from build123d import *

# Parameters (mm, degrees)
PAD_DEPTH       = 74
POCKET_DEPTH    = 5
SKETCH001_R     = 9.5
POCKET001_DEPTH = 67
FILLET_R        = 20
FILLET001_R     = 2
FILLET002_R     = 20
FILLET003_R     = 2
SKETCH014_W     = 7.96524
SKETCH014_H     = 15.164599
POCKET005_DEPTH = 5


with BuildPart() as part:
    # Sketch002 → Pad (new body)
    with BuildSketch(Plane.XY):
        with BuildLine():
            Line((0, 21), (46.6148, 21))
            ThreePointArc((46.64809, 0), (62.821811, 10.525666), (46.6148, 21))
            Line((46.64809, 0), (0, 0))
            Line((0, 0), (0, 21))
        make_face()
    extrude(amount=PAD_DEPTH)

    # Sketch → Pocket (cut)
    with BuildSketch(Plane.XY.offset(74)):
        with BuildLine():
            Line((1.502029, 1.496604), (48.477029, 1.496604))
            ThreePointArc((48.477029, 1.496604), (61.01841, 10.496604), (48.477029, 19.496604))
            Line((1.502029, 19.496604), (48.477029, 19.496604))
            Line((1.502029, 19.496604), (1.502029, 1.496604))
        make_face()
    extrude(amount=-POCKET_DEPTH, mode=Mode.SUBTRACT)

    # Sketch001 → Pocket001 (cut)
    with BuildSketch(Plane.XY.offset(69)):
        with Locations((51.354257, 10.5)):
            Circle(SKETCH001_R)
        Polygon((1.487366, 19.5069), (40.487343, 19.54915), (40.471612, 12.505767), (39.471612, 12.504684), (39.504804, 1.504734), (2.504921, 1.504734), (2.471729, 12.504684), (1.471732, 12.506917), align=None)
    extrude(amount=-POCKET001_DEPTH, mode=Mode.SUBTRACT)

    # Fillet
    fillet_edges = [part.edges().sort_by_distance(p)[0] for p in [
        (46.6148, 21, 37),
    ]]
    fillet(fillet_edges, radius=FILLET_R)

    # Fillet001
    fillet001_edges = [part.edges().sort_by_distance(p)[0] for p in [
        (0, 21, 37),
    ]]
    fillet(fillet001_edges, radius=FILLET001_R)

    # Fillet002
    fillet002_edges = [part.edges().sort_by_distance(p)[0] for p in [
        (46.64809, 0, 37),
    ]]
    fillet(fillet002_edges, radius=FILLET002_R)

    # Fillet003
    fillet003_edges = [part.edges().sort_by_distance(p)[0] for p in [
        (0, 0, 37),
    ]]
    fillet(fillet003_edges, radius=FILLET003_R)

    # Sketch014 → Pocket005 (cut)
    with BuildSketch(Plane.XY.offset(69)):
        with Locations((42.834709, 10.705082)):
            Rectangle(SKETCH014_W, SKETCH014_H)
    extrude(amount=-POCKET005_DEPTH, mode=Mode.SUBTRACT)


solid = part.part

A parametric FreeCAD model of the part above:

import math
import FreeCAD as App
import Part
import Sketcher


def edges_at(feature, points):
    """Names of the edges that pass closest to the given points."""
    edges = feature.Shape.Edges
    near = lambda p: min(range(len(edges)), key=lambda i: edges[i].distToShape(Part.Vertex(*p))[0])
    return sorted({f"Edge{near(p) + 1}" for p in points})


def add_polygon(sketch, points):
    """Adds a closed chain of lines whose ends are joined by coincident constraints."""
    first, n = sketch.GeometryCount, len(points)
    for a, b in zip(points, points[1:] + points[:1]):
        sketch.addGeometry(Part.LineSegment(App.Vector(*a, 0), App.Vector(*b, 0)), False)
    for i in range(n):
        sketch.addConstraint(Sketcher.Constraint("Coincident", first + i, 2, first + (i + 1) % n, 1))

doc = App.newDocument("Part")
params = doc.addObject("Spreadsheet::Sheet", "Params")
for row, (alias, value) in enumerate([
    ("sketch1_radius", "11.5 mm"),
    ("sketch1_height", "21 mm"),
    ("pad1_length", "74 mm"),
    ("sketch2_radius", "9.5 mm"),
    ("sketch2_height", "18 mm"),
    ("pocket1_length", "5 mm"),
    ("sketch3_diameter", "19 mm"),
    ("sketch3_length", "39 mm"),
    ("sketch3_length2", "7 mm"),
    ("sketch3_length3", "0.999999 mm"),
    ("sketch3_length4", "11 mm"),
    ("pocket2_length", "67 mm"),
    ("fillet_radius", "20 mm"),
    ("fillet2_radius", "2 mm"),
    ("fillet3_radius", "20 mm"),
    ("fillet4_radius", "2 mm"),
    ("pocket3_length", "5 mm"),
], start=1):
    params.set(f"A{row}", alias)
    params.set(f"B{row}", "=" + value)
    params.setAlias(f"B{row}", alias)

body = doc.addObject("PartDesign::Body", "Body")

sketch1 = body.newObject("Sketcher::SketchObject", "Sketch")
sketch1.AttachmentSupport = (doc.getObject("XY_Plane"), [""])
sketch1.MapMode = "FlatFace"
sketch1.addGeometry(Part.LineSegment(App.Vector(46.6148, 21, 0), App.Vector(0, 21, 0)), False)
sketch1.addGeometry(Part.LineSegment(App.Vector(0, 21, 0), App.Vector(0, 0, 0)), False)
sketch1.addGeometry(Part.LineSegment(App.Vector(0, 0, 0), App.Vector(46.64809, 0, 0)), False)
sketch1.addGeometry(Part.ArcOfCircle(Part.Circle(App.Vector(51.321825, 10.507435, 0), App.Vector(0, 0, 1), 11.5), math.radians(-113.979626), math.radians(114.161281)), False)
sketch1.addConstraint(Sketcher.Constraint("Coincident", 0, 2, 1, 1))
sketch1.addConstraint(Sketcher.Constraint("Coincident", 1, 2, 2, 1))
sketch1.addConstraint(Sketcher.Constraint("Coincident", 2, 2, 3, 1))
sketch1.addConstraint(Sketcher.Constraint("Coincident", 3, 2, 0, 1))
sketch1.addConstraint(Sketcher.Constraint("Horizontal", 0))
sketch1.addConstraint(Sketcher.Constraint("Vertical", 1))
sketch1.addConstraint(Sketcher.Constraint("Horizontal", 2))
sketch1.addConstraint(Sketcher.Constraint("Coincident", 1, 2, -1, 1))
sketch1.addConstraint(Sketcher.Constraint("Radius", 3, 11.5))
sketch1.addConstraint(Sketcher.Constraint("DistanceY", 1, 2, 1, 1, 21.0))
sketch1.addConstraint(Sketcher.Constraint("DistanceX", 0, 2, 0, 1, 46.6148))
sketch1.addConstraint(Sketcher.Constraint("DistanceX", 2, 1, 2, 2, 46.64809))
sketch1.setExpression("Constraints[8]", "Params.sketch1_radius")
sketch1.setExpression("Constraints[9]", "Params.sketch1_height")
pad1 = body.newObject("PartDesign::Pad", "Pad")
pad1.Profile = sketch1
pad1.setExpression("Length", "Params.pad1_length")

sketch2 = body.newObject("Sketcher::SketchObject", "Sketch001")
sketch2.AttachmentSupport = (doc.getObject("XY_Plane"), [""])
sketch2.MapMode = "FlatFace"
sketch2.AttachmentOffset = App.Placement(App.Vector(0, 0, 74), App.Rotation())
sketch2.addGeometry(Part.LineSegment(App.Vector(1.502029, 1.496604, 0), App.Vector(48.477029, 1.496604, 0)), False)
sketch2.addGeometry(Part.ArcOfCircle(Part.Circle(App.Vector(51.51841, 10.496604, 0), App.Vector(0, 0, 1), 9.5), math.radians(-108.671717), math.radians(108.671717)), False)
sketch2.addGeometry(Part.LineSegment(App.Vector(48.477029, 19.496604, 0), App.Vector(1.502029, 19.496604, 0)), False)
sketch2.addGeometry(Part.LineSegment(App.Vector(1.502029, 19.496604, 0), App.Vector(1.502029, 1.496604, 0)), False)
sketch2.addConstraint(Sketcher.Constraint("Coincident", 0, 2, 1, 1))
sketch2.addConstraint(Sketcher.Constraint("Coincident", 1, 2, 2, 1))
sketch2.addConstraint(Sketcher.Constraint("Coincident", 2, 2, 3, 1))
sketch2.addConstraint(Sketcher.Constraint("Coincident", 3, 2, 0, 1))
sketch2.addConstraint(Sketcher.Constraint("Horizontal", 0))
sketch2.addConstraint(Sketcher.Constraint("Horizontal", 2))
sketch2.addConstraint(Sketcher.Constraint("Vertical", 3))
sketch2.addConstraint(Sketcher.Constraint("Vertical", 0, 2, 1, 2))
sketch2.addConstraint(Sketcher.Constraint("Radius", 1, 9.5))
sketch2.addConstraint(Sketcher.Constraint("DistanceY", 3, 2, 3, 1, 18.0))
sketch2.addConstraint(Sketcher.Constraint("DistanceX", 0, 1, 0, 2, 46.975))
sketch2.addConstraint(Sketcher.Constraint("DistanceX", -1, 1, 1, 3, 51.51841))
sketch2.addConstraint(Sketcher.Constraint("DistanceY", -1, 1, 1, 3, 10.496604))
sketch2.setExpression("Constraints[8]", "Params.sketch2_radius")
sketch2.setExpression("Constraints[9]", "Params.sketch2_height")
pocket1 = body.newObject("PartDesign::Pocket", "Pocket")
pocket1.Profile = sketch2
pocket1.setExpression("Length", "Params.pocket1_length")

sketch3 = body.newObject("Sketcher::SketchObject", "Sketch002")
sketch3.AttachmentSupport = (doc.getObject("XY_Plane"), [""])
sketch3.MapMode = "FlatFace"
sketch3.AttachmentOffset = App.Placement(App.Vector(0, 0, 69), App.Rotation())
sketch3.addGeometry(Part.Circle(App.Vector(51.354257, 10.5, 0), App.Vector(0, 0, 1), 9.5), False)
add_polygon(sketch3, [(40.487343, 19.54915), (1.487366, 19.5069), (1.471732, 12.506917), (2.471729, 12.504684), (2.504921, 1.504734), (39.504804, 1.504734), (39.471612, 12.504684), (40.471612, 12.505767)])
sketch3.addConstraint(Sketcher.Constraint("Horizontal", 5))
sketch3.addConstraint(Sketcher.Constraint("Diameter", 0, 19.0))
sketch3.addConstraint(Sketcher.Constraint("Distance", 1, 39.0))
sketch3.addConstraint(Sketcher.Constraint("Distance", 2, 7.0))
sketch3.addConstraint(Sketcher.Constraint("Distance", 3, 0.999999))
sketch3.addConstraint(Sketcher.Constraint("Distance", 4, 11.0))
sketch3.addConstraint(Sketcher.Constraint("Distance", 6, 11.0))
sketch3.addConstraint(Sketcher.Constraint("Distance", 7, 1.000001))
sketch3.addConstraint(Sketcher.Constraint("DistanceY", -1, 1, 0, 3, 10.5))
sketch3.addConstraint(Sketcher.Constraint("Distance", 8, 7.043401))
sketch3.addConstraint(Sketcher.Constraint("DistanceY", -1, 1, 1, 2, 19.5069))
sketch3.addConstraint(Sketcher.Constraint("DistanceX", 5, 1, 5, 2, 36.999883))
sketch3.addConstraint(Sketcher.Constraint("DistanceX", -1, 1, 3, 2, 2.471729))
sketch3.addConstraint(Sketcher.Constraint("DistanceX", -1, 1, 4, 2, 2.504921))
sketch3.addConstraint(Sketcher.Constraint("DistanceY", -1, 1, 8, 2, 19.54915))
sketch3.addConstraint(Sketcher.Constraint("DistanceX", 1, 2, 0, 3, 49.866891))
sketch3.addConstraint(Sketcher.Constraint("DistanceX", 6, 2, 5, 2, 0.033192))
sketch3.addConstraint(Sketcher.Constraint("DistanceX", 7, 2, 8, 2, 0.015731))
sketch3.addConstraint(Sketcher.Constraint("DistanceY", -1, 1, 3, 2, 12.504684))
sketch3.setExpression("Constraints[9]", "Params.sketch3_diameter")
sketch3.setExpression("Constraints[10]", "Params.sketch3_length")
sketch3.setExpression("Constraints[11]", "Params.sketch3_length2")
sketch3.setExpression("Constraints[12]", "Params.sketch3_length3")
sketch3.setExpression("Constraints[13]", "Params.sketch3_length4")
pocket2 = body.newObject("PartDesign::Pocket", "Pocket001")
pocket2.Profile = sketch3
pocket2.setExpression("Length", "Params.pocket2_length")
doc.recompute()

fillet = body.newObject("PartDesign::Fillet", "Fillet")
fillet.Base = (pocket2, edges_at(pocket2, [(46.615, 21, 37)]))
fillet.setExpression("Radius", "Params.fillet_radius")
doc.recompute()

fillet2 = body.newObject("PartDesign::Fillet", "Fillet001")
fillet2.Base = (fillet, edges_at(fillet, [(0, 21, 37)]))
fillet2.setExpression("Radius", "Params.fillet2_radius")
doc.recompute()

fillet3 = body.newObject("PartDesign::Fillet", "Fillet002")
fillet3.Base = (fillet2, edges_at(fillet2, [(46.648, 0, 37)]))
fillet3.setExpression("Radius", "Params.fillet3_radius")
doc.recompute()

fillet4 = body.newObject("PartDesign::Fillet", "Fillet003")
fillet4.Base = (fillet3, edges_at(fillet3, [(0, 0, 37)]))
fillet4.setExpression("Radius", "Params.fillet4_radius")

sketch4 = body.newObject("Sketcher::SketchObject", "Sketch003")
sketch4.AttachmentSupport = (doc.getObject("XY_Plane"), [""])
sketch4.MapMode = "FlatFace"
sketch4.AttachmentOffset = App.Placement(App.Vector(0, 0, 69), App.Rotation())
add_polygon(sketch4, [(38.852089, 18.287381), (38.852089, 3.122783), (46.817329, 3.122783), (46.817329, 18.287381)])
sketch4.addConstraint(Sketcher.Constraint("Vertical", 0))
sketch4.addConstraint(Sketcher.Constraint("Horizontal", 1))
sketch4.addConstraint(Sketcher.Constraint("Vertical", 2))
sketch4.addConstraint(Sketcher.Constraint("Horizontal", 3))
sketch4.addConstraint(Sketcher.Constraint("DistanceY", 0, 2, 0, 1, 15.164599))
sketch4.addConstraint(Sketcher.Constraint("DistanceX", 1, 1, 1, 2, 7.96524))
sketch4.addConstraint(Sketcher.Constraint("DistanceX", -1, 1, 0, 2, 38.852089))
sketch4.addConstraint(Sketcher.Constraint("DistanceY", -1, 1, 2, 2, 18.287381))
pocket3 = body.newObject("PartDesign::Pocket", "Pocket002")
pocket3.Profile = sketch4
pocket3.setExpression("Length", "Params.pocket3_length")

doc.recompute()
